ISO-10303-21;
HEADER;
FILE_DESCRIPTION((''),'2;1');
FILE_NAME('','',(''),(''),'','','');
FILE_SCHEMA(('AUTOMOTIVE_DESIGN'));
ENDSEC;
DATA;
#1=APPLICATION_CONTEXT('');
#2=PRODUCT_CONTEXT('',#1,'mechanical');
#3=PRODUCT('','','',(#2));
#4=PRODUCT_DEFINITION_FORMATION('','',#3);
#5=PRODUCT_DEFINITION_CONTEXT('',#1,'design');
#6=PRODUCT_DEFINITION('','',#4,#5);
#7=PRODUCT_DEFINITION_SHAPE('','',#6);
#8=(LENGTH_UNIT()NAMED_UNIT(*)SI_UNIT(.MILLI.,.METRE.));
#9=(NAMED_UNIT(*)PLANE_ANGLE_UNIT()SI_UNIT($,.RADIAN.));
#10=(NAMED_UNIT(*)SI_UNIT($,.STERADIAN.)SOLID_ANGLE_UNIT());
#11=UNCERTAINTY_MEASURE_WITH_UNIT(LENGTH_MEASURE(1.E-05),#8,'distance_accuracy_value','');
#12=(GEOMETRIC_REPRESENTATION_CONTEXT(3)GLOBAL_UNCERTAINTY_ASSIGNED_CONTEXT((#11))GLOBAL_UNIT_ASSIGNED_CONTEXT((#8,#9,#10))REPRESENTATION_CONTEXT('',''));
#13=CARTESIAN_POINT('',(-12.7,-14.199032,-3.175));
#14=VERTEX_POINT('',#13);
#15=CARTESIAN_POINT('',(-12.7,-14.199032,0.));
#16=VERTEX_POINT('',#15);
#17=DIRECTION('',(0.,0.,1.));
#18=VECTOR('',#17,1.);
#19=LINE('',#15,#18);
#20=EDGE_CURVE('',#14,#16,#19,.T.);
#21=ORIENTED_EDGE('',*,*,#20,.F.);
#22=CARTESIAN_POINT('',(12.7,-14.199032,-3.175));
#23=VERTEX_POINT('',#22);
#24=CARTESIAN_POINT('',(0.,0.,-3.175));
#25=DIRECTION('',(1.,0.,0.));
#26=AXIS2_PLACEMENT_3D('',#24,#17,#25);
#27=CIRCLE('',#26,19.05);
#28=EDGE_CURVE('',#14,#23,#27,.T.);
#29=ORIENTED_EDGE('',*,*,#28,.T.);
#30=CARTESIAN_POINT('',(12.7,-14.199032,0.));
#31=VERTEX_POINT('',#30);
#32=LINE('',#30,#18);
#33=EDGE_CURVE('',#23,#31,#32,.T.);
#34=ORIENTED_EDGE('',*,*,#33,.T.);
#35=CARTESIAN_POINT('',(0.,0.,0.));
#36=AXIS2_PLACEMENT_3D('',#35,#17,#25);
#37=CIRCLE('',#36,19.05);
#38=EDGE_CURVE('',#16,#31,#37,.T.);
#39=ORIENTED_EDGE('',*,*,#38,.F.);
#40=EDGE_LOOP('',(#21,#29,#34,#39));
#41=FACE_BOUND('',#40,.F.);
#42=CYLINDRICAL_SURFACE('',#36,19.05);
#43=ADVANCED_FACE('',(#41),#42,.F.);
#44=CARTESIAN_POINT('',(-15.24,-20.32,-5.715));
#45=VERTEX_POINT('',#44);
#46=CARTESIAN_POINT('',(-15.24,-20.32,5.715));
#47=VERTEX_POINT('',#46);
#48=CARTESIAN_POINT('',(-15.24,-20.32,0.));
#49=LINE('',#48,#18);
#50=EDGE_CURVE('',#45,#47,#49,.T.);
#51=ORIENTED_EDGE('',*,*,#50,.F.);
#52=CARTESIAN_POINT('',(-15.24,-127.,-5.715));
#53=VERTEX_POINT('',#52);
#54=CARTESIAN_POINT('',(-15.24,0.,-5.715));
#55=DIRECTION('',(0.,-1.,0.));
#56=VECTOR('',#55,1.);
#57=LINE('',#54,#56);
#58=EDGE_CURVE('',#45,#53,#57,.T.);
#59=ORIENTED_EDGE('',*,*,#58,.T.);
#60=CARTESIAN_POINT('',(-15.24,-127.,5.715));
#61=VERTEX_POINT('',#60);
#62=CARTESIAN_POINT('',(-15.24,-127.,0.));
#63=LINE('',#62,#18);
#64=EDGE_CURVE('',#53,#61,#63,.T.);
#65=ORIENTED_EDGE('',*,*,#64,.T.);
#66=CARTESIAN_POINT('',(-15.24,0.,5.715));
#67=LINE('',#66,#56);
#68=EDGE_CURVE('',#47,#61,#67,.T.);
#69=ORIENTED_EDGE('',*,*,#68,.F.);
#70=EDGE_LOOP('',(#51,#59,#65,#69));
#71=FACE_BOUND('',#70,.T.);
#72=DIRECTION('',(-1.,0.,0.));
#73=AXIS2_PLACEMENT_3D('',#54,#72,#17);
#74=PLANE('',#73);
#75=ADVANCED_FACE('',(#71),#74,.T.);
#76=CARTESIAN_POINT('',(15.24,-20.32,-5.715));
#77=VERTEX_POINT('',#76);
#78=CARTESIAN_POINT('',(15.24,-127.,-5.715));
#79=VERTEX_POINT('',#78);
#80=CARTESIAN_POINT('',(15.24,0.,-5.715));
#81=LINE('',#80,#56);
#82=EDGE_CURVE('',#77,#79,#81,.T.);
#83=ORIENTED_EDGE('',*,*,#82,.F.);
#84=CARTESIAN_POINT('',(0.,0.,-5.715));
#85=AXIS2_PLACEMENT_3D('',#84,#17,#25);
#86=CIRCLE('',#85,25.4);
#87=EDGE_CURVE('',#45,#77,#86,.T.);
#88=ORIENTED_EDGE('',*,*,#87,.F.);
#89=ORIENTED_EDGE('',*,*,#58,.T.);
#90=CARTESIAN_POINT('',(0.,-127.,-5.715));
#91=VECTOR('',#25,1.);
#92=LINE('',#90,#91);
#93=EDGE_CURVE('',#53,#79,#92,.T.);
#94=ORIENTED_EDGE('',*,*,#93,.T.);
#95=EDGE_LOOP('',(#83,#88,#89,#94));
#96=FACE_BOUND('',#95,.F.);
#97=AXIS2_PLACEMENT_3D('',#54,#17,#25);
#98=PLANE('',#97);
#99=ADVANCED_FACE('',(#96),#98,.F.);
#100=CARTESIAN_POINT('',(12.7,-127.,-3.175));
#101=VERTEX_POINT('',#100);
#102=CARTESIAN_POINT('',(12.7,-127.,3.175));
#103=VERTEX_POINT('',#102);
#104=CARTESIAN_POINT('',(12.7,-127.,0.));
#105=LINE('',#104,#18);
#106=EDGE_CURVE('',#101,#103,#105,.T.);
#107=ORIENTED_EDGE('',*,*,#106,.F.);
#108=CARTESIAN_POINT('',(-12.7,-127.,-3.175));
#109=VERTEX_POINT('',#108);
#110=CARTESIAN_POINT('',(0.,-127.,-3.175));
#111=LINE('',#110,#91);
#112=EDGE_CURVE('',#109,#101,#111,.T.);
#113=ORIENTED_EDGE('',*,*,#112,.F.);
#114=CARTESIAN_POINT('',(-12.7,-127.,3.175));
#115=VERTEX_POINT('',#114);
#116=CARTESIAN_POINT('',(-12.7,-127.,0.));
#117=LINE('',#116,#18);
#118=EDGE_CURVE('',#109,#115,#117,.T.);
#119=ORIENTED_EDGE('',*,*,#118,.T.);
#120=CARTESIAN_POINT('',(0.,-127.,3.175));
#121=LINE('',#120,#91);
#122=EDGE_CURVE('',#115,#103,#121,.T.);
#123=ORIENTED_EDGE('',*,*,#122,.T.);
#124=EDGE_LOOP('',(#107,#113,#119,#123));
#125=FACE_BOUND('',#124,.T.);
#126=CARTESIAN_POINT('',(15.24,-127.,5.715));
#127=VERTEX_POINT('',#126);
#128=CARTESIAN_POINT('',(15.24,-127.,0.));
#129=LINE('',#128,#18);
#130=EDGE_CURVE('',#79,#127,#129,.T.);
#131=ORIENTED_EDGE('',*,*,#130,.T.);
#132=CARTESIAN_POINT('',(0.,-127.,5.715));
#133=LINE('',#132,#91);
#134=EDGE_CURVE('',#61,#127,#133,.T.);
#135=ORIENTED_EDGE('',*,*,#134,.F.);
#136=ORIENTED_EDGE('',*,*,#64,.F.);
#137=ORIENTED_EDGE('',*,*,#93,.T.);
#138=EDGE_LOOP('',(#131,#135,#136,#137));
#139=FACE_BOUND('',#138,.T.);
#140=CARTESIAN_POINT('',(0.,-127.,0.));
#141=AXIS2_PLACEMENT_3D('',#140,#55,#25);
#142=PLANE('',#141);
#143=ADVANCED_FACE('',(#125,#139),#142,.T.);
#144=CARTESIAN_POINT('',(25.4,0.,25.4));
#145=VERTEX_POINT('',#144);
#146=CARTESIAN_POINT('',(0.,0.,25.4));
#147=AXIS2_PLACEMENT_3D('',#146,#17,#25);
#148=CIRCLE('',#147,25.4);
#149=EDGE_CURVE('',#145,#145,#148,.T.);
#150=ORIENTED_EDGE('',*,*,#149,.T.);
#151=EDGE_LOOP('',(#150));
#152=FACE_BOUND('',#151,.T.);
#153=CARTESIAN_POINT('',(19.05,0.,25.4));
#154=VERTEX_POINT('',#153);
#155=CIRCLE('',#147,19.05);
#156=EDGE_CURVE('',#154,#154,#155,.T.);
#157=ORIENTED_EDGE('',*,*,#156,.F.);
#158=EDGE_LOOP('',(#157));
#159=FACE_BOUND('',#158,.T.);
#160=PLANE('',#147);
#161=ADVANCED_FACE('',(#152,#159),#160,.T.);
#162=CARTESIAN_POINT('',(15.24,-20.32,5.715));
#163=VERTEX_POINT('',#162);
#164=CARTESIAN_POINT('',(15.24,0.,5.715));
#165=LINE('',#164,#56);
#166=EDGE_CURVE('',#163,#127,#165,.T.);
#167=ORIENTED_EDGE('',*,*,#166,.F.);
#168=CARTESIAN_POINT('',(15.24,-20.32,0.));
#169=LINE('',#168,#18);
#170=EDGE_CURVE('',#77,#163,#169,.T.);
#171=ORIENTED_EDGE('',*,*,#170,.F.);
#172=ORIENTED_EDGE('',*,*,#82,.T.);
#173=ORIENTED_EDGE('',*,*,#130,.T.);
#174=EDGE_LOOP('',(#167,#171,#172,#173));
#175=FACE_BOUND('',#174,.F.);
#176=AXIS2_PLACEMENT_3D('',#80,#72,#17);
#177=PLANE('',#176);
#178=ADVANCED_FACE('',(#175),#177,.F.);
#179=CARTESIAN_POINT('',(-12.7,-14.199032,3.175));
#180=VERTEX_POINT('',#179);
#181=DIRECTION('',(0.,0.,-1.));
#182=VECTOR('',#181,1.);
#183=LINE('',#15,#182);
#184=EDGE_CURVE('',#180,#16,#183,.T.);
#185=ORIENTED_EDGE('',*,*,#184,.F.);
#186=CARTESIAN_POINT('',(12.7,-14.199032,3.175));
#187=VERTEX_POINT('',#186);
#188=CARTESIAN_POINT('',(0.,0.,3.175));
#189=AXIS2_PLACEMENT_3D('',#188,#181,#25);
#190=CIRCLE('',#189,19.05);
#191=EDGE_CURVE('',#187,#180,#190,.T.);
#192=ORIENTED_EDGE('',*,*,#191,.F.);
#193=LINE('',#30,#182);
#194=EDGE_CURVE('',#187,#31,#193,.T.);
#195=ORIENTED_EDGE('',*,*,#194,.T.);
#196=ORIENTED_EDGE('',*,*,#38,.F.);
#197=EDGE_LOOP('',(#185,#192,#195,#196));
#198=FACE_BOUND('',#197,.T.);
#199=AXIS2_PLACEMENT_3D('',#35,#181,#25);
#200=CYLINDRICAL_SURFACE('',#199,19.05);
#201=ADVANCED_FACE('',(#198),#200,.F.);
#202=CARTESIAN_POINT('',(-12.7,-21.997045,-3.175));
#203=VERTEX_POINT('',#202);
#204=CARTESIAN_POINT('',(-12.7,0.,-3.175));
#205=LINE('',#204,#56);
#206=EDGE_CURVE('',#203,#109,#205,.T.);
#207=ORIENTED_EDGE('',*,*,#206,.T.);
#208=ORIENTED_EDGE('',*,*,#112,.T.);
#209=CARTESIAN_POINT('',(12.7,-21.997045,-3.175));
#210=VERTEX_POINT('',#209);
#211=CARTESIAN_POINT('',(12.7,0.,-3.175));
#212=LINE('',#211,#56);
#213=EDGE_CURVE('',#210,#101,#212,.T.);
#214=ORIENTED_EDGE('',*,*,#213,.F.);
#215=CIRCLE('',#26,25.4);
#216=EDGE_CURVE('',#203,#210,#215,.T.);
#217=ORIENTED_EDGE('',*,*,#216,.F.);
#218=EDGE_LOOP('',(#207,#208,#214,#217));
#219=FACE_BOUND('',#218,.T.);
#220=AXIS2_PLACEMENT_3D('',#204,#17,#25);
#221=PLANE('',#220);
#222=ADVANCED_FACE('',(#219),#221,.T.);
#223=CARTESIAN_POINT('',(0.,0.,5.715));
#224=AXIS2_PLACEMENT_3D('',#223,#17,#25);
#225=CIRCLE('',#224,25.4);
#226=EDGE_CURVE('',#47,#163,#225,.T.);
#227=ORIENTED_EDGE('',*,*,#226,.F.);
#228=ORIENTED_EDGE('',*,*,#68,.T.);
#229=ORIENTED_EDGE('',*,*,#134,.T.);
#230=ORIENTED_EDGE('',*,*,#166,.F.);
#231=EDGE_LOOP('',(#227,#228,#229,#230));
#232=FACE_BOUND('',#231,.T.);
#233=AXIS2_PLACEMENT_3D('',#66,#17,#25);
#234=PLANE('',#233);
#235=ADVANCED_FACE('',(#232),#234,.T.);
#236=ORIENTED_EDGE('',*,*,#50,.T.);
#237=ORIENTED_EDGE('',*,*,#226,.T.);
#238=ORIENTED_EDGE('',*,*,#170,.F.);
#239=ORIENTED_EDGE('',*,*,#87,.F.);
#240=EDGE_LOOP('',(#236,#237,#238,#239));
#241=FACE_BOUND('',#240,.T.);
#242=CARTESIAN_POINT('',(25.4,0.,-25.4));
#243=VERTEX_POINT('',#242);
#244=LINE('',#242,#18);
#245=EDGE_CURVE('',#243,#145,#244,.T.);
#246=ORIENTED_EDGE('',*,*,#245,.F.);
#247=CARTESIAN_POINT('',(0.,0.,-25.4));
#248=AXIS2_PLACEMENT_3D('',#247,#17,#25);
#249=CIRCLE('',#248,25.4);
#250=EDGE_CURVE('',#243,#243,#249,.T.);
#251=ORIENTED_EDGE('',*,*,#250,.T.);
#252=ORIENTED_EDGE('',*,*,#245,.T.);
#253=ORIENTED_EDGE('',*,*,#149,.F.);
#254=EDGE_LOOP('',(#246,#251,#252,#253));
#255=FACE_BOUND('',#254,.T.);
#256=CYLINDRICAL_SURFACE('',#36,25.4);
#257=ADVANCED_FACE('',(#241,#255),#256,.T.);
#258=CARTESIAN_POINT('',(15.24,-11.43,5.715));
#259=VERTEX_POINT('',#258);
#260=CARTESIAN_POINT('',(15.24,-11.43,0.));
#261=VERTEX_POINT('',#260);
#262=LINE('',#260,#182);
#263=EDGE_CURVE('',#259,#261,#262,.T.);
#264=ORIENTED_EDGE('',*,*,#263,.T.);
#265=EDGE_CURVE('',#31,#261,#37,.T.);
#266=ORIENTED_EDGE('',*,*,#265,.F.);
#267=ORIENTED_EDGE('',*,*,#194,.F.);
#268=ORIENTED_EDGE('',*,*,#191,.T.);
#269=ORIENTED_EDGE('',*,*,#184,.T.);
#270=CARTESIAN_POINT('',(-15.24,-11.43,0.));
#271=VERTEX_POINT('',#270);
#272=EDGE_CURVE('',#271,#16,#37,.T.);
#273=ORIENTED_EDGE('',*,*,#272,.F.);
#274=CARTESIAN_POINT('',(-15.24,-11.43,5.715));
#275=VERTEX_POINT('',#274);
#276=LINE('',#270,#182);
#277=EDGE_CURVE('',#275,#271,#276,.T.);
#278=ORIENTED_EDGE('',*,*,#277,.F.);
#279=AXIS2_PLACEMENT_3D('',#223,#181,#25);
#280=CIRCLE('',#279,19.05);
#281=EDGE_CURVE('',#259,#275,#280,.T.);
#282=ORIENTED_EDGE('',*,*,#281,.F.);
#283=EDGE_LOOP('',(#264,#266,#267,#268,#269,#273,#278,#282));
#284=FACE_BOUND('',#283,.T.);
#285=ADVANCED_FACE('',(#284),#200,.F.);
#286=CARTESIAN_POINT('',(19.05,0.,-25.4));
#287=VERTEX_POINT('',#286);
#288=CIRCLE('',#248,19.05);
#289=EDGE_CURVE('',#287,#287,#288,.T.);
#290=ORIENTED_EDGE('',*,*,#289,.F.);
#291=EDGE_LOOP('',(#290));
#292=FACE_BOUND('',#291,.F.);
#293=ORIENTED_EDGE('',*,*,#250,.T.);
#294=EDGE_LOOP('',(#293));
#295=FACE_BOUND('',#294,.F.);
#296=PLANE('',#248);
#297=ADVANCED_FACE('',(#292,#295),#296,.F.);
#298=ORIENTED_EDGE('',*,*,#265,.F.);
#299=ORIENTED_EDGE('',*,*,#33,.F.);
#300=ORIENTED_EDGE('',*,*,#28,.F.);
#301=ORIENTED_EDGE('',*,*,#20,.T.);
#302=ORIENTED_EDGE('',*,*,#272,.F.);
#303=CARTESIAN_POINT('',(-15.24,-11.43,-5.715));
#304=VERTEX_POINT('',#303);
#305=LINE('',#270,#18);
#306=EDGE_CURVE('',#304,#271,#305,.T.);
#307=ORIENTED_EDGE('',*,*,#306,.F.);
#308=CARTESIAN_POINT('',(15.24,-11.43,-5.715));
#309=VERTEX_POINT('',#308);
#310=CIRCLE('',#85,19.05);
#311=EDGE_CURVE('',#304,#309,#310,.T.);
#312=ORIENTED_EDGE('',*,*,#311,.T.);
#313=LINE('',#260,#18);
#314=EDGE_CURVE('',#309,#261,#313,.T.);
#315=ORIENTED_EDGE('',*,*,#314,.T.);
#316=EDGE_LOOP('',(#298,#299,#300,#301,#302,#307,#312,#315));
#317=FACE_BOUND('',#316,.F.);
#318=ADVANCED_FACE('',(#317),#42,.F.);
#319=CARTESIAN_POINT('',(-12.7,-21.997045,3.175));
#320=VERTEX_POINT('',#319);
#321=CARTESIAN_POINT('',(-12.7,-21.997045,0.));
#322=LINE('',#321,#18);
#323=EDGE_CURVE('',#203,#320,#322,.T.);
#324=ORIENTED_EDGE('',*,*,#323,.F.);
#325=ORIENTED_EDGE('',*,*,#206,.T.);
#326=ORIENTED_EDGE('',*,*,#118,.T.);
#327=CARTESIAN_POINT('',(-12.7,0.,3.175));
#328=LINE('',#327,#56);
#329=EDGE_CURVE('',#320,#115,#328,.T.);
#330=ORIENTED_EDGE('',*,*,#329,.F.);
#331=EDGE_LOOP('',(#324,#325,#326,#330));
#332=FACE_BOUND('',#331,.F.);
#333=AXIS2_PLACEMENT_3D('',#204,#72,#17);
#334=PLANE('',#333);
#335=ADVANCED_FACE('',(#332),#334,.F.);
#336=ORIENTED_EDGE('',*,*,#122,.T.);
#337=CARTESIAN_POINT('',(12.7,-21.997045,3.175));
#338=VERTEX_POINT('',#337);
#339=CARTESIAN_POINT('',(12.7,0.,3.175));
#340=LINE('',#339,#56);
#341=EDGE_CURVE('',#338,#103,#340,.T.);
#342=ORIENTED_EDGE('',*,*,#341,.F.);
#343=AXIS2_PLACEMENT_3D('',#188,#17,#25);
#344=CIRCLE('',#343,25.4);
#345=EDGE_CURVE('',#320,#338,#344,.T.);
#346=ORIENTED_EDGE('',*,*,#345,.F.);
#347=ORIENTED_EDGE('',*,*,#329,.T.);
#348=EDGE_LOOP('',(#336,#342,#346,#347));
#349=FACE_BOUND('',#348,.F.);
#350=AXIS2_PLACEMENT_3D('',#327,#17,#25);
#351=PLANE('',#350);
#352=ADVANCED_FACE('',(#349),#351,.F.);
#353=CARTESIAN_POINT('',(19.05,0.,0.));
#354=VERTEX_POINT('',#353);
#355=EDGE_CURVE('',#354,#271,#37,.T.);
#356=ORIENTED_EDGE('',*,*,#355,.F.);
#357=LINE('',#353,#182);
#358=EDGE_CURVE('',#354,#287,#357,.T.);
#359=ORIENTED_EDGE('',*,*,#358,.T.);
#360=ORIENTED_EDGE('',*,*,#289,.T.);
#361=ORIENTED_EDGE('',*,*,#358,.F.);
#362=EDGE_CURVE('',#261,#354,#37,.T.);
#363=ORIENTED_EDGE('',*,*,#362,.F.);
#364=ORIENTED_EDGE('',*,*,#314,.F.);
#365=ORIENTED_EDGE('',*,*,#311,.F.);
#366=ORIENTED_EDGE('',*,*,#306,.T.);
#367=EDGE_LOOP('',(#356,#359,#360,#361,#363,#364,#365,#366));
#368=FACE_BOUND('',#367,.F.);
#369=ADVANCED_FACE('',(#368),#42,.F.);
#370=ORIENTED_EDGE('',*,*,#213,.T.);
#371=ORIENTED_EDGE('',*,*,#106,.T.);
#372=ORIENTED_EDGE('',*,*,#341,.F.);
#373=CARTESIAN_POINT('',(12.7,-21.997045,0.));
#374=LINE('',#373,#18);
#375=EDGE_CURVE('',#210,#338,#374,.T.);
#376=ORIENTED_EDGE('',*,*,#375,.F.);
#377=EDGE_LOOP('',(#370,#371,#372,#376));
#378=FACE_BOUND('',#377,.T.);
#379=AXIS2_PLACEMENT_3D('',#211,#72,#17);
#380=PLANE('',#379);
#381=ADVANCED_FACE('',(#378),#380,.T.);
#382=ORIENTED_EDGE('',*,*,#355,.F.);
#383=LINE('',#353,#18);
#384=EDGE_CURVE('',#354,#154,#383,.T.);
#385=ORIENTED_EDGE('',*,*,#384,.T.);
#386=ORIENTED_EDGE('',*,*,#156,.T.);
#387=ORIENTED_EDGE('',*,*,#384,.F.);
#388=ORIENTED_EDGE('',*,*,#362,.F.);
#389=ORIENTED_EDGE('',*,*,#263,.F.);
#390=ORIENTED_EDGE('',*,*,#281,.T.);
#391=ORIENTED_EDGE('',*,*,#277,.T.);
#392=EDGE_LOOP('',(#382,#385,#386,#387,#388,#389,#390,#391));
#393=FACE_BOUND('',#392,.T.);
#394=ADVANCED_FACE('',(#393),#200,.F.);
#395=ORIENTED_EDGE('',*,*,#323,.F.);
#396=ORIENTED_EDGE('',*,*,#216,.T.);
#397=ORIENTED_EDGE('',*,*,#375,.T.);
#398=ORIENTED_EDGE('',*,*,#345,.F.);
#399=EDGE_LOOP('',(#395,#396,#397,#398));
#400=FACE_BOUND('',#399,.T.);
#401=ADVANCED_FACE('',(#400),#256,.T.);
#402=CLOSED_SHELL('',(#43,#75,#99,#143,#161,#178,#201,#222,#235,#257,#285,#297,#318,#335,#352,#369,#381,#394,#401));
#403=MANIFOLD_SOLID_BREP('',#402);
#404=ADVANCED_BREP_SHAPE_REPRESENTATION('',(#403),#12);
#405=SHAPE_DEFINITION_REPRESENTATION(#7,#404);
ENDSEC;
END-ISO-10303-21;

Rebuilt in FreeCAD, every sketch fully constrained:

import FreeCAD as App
import Part
import Sketcher

V = App.Vector
Q = App.Units.Quantity

doc = App.newDocument("Part")
body = doc.addObject("PartDesign::Body", "Body")

# Sketch on XY plane
sketch1 = doc.addObject("Sketcher::SketchObject", "Sketch")
body.addObject(sketch1)
sketch1.AttachmentSupport = (doc.XY_Plane, [""])
sketch1.MapMode = "FlatFace"
sketch1.addGeometry(Part.Circle(V(0, 0, 0), V(0, 0, 1), 25), False)
sketch1.addGeometry(Part.Circle(V(0, 0, 0), V(0, 0, 1), 19), False)
sketch1.addConstraint(Sketcher.Constraint("Coincident", 0, 3, -1, 1))
sketch1.addConstraint(Sketcher.Constraint("Coincident", 1, 3, -1, 1))
sketch1.addConstraint(Sketcher.Constraint("Diameter", 0, Q("2 in")))
sketch1.addConstraint(Sketcher.Constraint("Diameter", 1, Q("1.5 in")))
pad1 = doc.addObject("PartDesign::Pad", "Pad")
body.addObject(pad1)
pad1.Profile = sketch1
pad1.Type = "TwoLengths"
pad1.Length = Q("1 in")
pad1.Length2 = Q("1 in")

# Sketch on XZ plane
sketch2 = doc.addObject("Sketcher::SketchObject", "Sketch001")
body.addObject(sketch2)
sketch2.AttachmentSupport = (doc.XZ_Plane, [""])
sketch2.MapMode = "FlatFace"
sketch2.addGeometry(Part.LineSegment(V(-15, 6, 0), V(-15, -6, 0)), False)
sketch2.addGeometry(Part.LineSegment(V(-15, -6, 0), V(15, -6, 0)), False)
sketch2.addGeometry(Part.LineSegment(V(15, -6, 0), V(15, 6, 0)), False)
sketch2.addGeometry(Part.LineSegment(V(15, 6, 0), V(-15, 6, 0)), False)
sketch2.addGeometry(Part.LineSegment(V(13, -3, 0), V(-13, -3, 0)), False)
sketch2.addGeometry(Part.LineSegment(V(-13, -3, 0), V(-13, 3, 0)), False)
sketch2.addGeometry(Part.LineSegment(V(-13, 3, 0), V(13, 3, 0)), False)
sketch2.addGeometry(Part.LineSegment(V(13, 3, 0), V(13, -3, 0)), False)
sketch2.addConstraint(Sketcher.Constraint("Coincident", 0, 2, 1, 1))
sketch2.addConstraint(Sketcher.Constraint("Coincident", 1, 2, 2, 1))
sketch2.addConstraint(Sketcher.Constraint("Coincident", 2, 2, 3, 1))
sketch2.addConstraint(Sketcher.Constraint("Coincident", 3, 2, 0, 1))
sketch2.addConstraint(Sketcher.Constraint("Coincident", 4, 2, 5, 1))
sketch2.addConstraint(Sketcher.Constraint("Coincident", 5, 2, 6, 1))
sketch2.addConstraint(Sketcher.Constraint("Coincident", 6, 2, 7, 1))
sketch2.addConstraint(Sketcher.Constraint("Coincident", 7, 2, 4, 1))
sketch2.addConstraint(Sketcher.Constraint("Vertical", 0))
sketch2.addConstraint(Sketcher.Constraint("Horizontal", 1))
sketch2.addConstraint(Sketcher.Constraint("Vertical", 2))
sketch2.addConstraint(Sketcher.Constraint("Horizontal", 3))
sketch2.addConstraint(Sketcher.Constraint("Horizontal", 4))
sketch2.addConstraint(Sketcher.Constraint("Vertical", 5))
sketch2.addConstraint(Sketcher.Constraint("Horizontal", 6))
sketch2.addConstraint(Sketcher.Constraint("Vertical", 7))
sketch2.addConstraint(Sketcher.Constraint("Symmetric", 0, 2, 2, 2, -1, 1))
sketch2.addConstraint(Sketcher.Constraint("Symmetric", 4, 2, 6, 2, -1, 1))
sketch2.addConstraint(Sketcher.Constraint("DistanceX", 4, 2, 4, 1, Q("1 in")))
sketch2.addConstraint(Sketcher.Constraint("DistanceX", 1, 1, 1, 2, Q("1.2 in")))
sketch2.addConstraint(Sketcher.Constraint("DistanceY", 0, 2, 0, 1, Q("0.45 in")))
sketch2.addConstraint(Sketcher.Constraint("DistanceY", 5, 1, 5, 2, Q("0.25 in")))
pad2 = doc.addObject("PartDesign::Pad", "Pad001")
body.addObject(pad2)
pad2.Profile = sketch2
pad2.Length = Q("5 in")

# Sketch on XY plane
sketch3 = doc.addObject("Sketcher::SketchObject", "Sketch002")
body.addObject(sketch3)
sketch3.AttachmentSupport = (doc.XY_Plane, [""])
sketch3.MapMode = "FlatFace"
sketch3.addGeometry(Part.Circle(V(0, 0, 0), V(0, 0, 1), 19), False)
sketch3.addConstraint(Sketcher.Constraint("Coincident", 0, 3, -1, 1))
sketch3.addConstraint(Sketcher.Constraint("Diameter", 0, Q("1.5 in")))
pocket1 = doc.addObject("PartDesign::Pocket", "Pocket")
body.addObject(pocket1)
pocket1.Profile = sketch3
pocket1.Type = "ThroughAll"
pocket1.Midplane = True

doc.recompute()
